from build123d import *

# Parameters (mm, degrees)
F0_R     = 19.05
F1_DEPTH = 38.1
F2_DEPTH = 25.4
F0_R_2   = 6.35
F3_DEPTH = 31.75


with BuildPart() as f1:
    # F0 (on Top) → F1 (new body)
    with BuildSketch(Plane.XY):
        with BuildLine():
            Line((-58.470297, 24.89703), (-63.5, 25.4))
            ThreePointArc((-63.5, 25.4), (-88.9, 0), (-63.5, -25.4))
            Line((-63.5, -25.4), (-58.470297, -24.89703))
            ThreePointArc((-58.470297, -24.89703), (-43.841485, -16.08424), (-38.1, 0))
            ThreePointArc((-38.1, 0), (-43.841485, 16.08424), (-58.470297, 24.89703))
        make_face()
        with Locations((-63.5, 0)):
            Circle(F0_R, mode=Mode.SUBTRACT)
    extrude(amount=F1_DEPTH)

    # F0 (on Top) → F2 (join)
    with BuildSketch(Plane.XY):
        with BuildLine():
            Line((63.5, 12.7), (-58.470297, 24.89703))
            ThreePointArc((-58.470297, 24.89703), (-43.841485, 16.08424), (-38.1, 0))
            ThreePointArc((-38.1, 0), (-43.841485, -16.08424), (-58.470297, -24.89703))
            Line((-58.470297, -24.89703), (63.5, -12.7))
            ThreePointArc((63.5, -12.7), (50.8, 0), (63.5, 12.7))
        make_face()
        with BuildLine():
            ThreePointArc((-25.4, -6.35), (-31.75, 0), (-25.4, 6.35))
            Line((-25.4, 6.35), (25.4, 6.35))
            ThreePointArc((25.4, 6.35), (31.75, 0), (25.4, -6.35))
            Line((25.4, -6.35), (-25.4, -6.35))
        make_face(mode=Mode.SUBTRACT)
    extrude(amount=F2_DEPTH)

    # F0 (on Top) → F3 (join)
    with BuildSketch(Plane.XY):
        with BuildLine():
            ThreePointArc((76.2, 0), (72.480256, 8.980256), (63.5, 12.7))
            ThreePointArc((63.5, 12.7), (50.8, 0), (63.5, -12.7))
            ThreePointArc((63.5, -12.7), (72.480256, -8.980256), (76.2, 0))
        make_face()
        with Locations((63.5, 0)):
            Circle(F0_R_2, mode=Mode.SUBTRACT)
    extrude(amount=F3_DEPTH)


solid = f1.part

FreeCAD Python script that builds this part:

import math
import FreeCAD as App
import Part
import Sketcher
Q = App.Units.Quantity

doc = App.newDocument("Part")
params = doc.addObject("Spreadsheet::Sheet", "Params")
for row, (alias, value) in enumerate([
    ("sketch1_radius", "1 in"),
    ("sketch1_diameter", "1.5 in"),
    ("pad1_length", "1.5 in"),
    ("sketch2_radius", "1.0000001 in"),
    ("sketch2_radius2", "0.5 in"),
    ("sketch2_width", "2 in"),
    ("sketch2_radius3", "0.25 in"),
    ("pad2_length", "1 in"),
    ("sketch3_diameter", "0.5 in"),
    ("sketch3_radius", "0.5 in"),
    ("pad3_length", "1.25 in"),
], start=1):
    params.set(f"A{row}", alias)
    params.set(f"B{row}", "=" + value)
    params.setAlias(f"B{row}", alias)

body = doc.addObject("PartDesign::Body", "Body")

# Sketch on XY plane
sketch1 = body.newObject("Sketcher::SketchObject", "Sketch")
sketch1.AttachmentSupport = (doc.getObject("XY_Plane"), [""])
sketch1.MapMode = "FlatFace"
sketch1.addGeometry([
    Part.LineSegment(App.Vector(-58.470297, 24.89703, 0), App.Vector(-63.5, 25.4, 0)),  # 0
    Part.ArcOfCircle(Part.Circle(App.Vector(-63.5, 0, 0), App.Vector(0, 0, 1), 25.4), math.radians(90), math.radians(270)),  # 1
    Part.LineSegment(App.Vector(-63.5, -25.4, 0), App.Vector(-58.470297, -24.89703, 0)),  # 2
    Part.ArcOfCircle(Part.Circle(App.Vector(-63.500001, 0.000001, 0), App.Vector(0, 0, 1), 25.400001), math.radians(-78.578811), math.radians(-0.000002)),  # 3
    Part.ArcOfCircle(Part.Circle(App.Vector(-63.500001, -0.000001, 0), App.Vector(0, 0, 1), 25.400001), math.radians(0.000002), math.radians(78.578811)),  # 4
    Part.Circle(App.Vector(-63.5, 0, 0), App.Vector(0, 0, 1), 19.05),  # 5
], False)
sketch1.addConstraint([
    Sketcher.Constraint("Coincident", 0, 2, 1, 1),
    Sketcher.Constraint("Coincident", 1, 2, 2, 1),
    Sketcher.Constraint("Coincident", 2, 2, 3, 1),
    Sketcher.Constraint("Tangent", 3, 2, 4, 1),
    Sketcher.Constraint("Coincident", 4, 2, 0, 1),
    Sketcher.Constraint("Coincident", 3, 3, 1, 3),
    Sketcher.Constraint("Coincident", 5, 3, 1, 3),
    Sketcher.Constraint("Equal", 1, 3),
    Sketcher.Constraint("Equal", 3, 4),
    Sketcher.Constraint("Symmetric", 0, 2, 1, 2, -1),
    Sketcher.Constraint("PointOnObject", 3, 2, -1),
    Sketcher.Constraint("Vertical", 5, 3, 0, 2),
    Sketcher.Constraint("Vertical", 2, 2, 4, 2),
    Sketcher.Constraint("Radius", 1, Q("1 in")),
    Sketcher.Constraint("Diameter", 5, Q("1.5 in")),
    Sketcher.Constraint("DistanceX", 1, 3, -1, 1, Q("2.5 in")),
    Sketcher.Constraint("Distance", 0, Q("5.054789 mm")),
])
sketch1.setExpression("Constraints[13]", "Params.sketch1_radius")
sketch1.setExpression("Constraints[14]", "Params.sketch1_diameter")
pad1 = body.newObject("PartDesign::Pad", "Pad")
pad1.Profile = sketch1
pad1.setExpression("Length", "Params.pad1_length")

# Sketch on XY plane
sketch2 = body.newObject("Sketcher::SketchObject", "Sketch001")
sketch2.AttachmentSupport = (doc.getObject("XY_Plane"), [""])
sketch2.MapMode = "FlatFace"
sketch2.addGeometry([
    Part.LineSegment(App.Vector(63.5, 12.7, 0), App.Vector(-58.470297, 24.89703, 0)),  # 0
    Part.ArcOfCircle(Part.Circle(App.Vector(-63.500001, -0.000001, 0), App.Vector(0, 0, 1), 25.400001), math.radians(0.000002), math.radians(78.578811)),  # 1
    Part.ArcOfCircle(Part.Circle(App.Vector(-63.500001, 0.000001, 0), App.Vector(0, 0, 1), 25.400001), math.radians(-78.578811), math.radians(-0.000002)),  # 2
    Part.LineSegment(App.Vector(-58.470297, -24.89703, 0), App.Vector(63.5, -12.7, 0)),  # 3
    Part.ArcOfCircle(Part.Circle(App.Vector(63.5, 0, 0), App.Vector(0, 0, 1), 12.7), math.radians(90), math.radians(270)),  # 4
    Part.LineSegment(App.Vector(25.4, -6.35, 0), App.Vector(-25.4, -6.35, 0)),  # 5
    Part.ArcOfCircle(Part.Circle(App.Vector(-25.4, 0, 0), App.Vector(0, 0, 1), 6.35), math.radians(90), math.radians(270)),  # 6
    Part.LineSegment(App.Vector(-25.4, 6.35, 0), App.Vector(25.4, 6.35, 0)),  # 7
    Part.ArcOfCircle(Part.Circle(App.Vector(25.4, 0, 0), App.Vector(0, 0, 1), 6.35), math.radians(-90), math.radians(90)),  # 8
], False)
sketch2.addConstraint([
    Sketcher.Constraint("Coincident", 0, 2, 1, 2),
    Sketcher.Constraint("Tangent", 1, 1, 2, 2),
    Sketcher.Constraint("Coincident", 2, 1, 3, 1),
    Sketcher.Constraint("Coincident", 3, 2, 4, 2),
    Sketcher.Constraint("Coincident", 4, 1, 0, 1),
    Sketcher.Constraint("Tangent", 5, 2, 6, 2),
    Sketcher.Constraint("Tangent", 6, 1, 7, 1),
    Sketcher.Constraint("Tangent", 7, 2, 8, 2),
    Sketcher.Constraint("Tangent", 8, 1, 5, 1),
    Sketcher.Constraint("Horizontal", 5),
    Sketcher.Constraint("Horizontal", 7),
    Sketcher.Constraint("Equal", 1, 2),
    Sketcher.Constraint("Symmetric", 1, 3, 4, 3, -1, 1),
    Sketcher.Constraint("Symmetric", 6, 3, 8, 3, -1, 1),
    Sketcher.Constraint("Symmetric", 0, 2, 2, 1, -1),
    Sketcher.Constraint("PointOnObject", 1, 1, -1),
    Sketcher.Constraint("Vertical", 4, 3, 3, 2),
    Sketcher.Constraint("Vertical", 3, 2, 4, 1),
    Sketcher.Constraint("Radius", 1, Q("1.0000001 in")),
    Sketcher.Constraint("Radius", 4, Q("0.5 in")),
    Sketcher.Constraint("DistanceX", 5, 2, 5, 1, Q("2 in")),
    Sketcher.Constraint("Radius", 6, Q("0.25 in")),
    Sketcher.Constraint("DistanceX", 1, 3, 4, 3, Q("5.0000001 in")),
    Sketcher.Constraint("Distance", 0, Q("122.578631 mm")),
])
sketch2.setExpression("Constraints[18]", "Params.sketch2_radius")
sketch2.setExpression("Constraints[19]", "Params.sketch2_radius2")
sketch2.setExpression("Constraints[20]", "Params.sketch2_width")
sketch2.setExpression("Constraints[21]", "Params.sketch2_radius3")
pad2 = body.newObject("PartDesign::Pad", "Pad001")
pad2.Profile = sketch2
pad2.setExpression("Length", "Params.pad2_length")

# Sketch on XY plane
sketch3 = body.newObject("Sketcher::SketchObject", "Sketch002")
sketch3.AttachmentSupport = (doc.getObject("XY_Plane"), [""])
sketch3.MapMode = "FlatFace"
sketch3.addGeometry([
    Part.ArcOfCircle(Part.Circle(App.Vector(63.5, 0, 0), App.Vector(0, 0, 1), 12.7), math.radians(0.000002), math.radians(89.999998)),
    Part.ArcOfCircle(Part.Circle(App.Vector(63.5, 0, 0), App.Vector(0, 0, 1), 12.7), math.radians(90), math.radians(270)),
    Part.ArcOfCircle(Part.Circle(App.Vector(63.5, 0, 0), App.Vector(0, 0, 1), 12.7), math.radians(-89.999998), math.radians(-0.000002)),
    Part.Circle(App.Vector(63.5, 0, 0), App.Vector(0, 0, 1), 6.35),
], False)
sketch3.addConstraint([
    Sketcher.Constraint("Tangent", 0, 2, 1, 1),
    Sketcher.Constraint("Tangent", 1, 2, 2, 1),
    Sketcher.Constraint("Tangent", 2, 2, 0, 1),
    Sketcher.Constraint("Coincident", 3, 3, 0, 3),
    Sketcher.Constraint("Symmetric", 0, 2, 1, 2, -1),
    Sketcher.Constraint("PointOnObject", 2, 2, -1),
    Sketcher.Constraint("Vertical", 3, 3, 0, 2),
    Sketcher.Constraint("Diameter", 3, Q("0.5 in")),
    Sketcher.Constraint("Radius", 0, Q("0.5 in")),
    Sketcher.Constraint("DistanceX", -1, 1, 2, 2, Q("3 in")),
])
sketch3.setExpression("Constraints[7]", "Params.sketch3_diameter")
sketch3.setExpression("Constraints[8]", "Params.sketch3_radius")
pad3 = body.newObject("PartDesign::Pad", "Pad002")
pad3.Profile = sketch3
pad3.setExpression("Length", "Params.pad3_length")

doc.recompute()
